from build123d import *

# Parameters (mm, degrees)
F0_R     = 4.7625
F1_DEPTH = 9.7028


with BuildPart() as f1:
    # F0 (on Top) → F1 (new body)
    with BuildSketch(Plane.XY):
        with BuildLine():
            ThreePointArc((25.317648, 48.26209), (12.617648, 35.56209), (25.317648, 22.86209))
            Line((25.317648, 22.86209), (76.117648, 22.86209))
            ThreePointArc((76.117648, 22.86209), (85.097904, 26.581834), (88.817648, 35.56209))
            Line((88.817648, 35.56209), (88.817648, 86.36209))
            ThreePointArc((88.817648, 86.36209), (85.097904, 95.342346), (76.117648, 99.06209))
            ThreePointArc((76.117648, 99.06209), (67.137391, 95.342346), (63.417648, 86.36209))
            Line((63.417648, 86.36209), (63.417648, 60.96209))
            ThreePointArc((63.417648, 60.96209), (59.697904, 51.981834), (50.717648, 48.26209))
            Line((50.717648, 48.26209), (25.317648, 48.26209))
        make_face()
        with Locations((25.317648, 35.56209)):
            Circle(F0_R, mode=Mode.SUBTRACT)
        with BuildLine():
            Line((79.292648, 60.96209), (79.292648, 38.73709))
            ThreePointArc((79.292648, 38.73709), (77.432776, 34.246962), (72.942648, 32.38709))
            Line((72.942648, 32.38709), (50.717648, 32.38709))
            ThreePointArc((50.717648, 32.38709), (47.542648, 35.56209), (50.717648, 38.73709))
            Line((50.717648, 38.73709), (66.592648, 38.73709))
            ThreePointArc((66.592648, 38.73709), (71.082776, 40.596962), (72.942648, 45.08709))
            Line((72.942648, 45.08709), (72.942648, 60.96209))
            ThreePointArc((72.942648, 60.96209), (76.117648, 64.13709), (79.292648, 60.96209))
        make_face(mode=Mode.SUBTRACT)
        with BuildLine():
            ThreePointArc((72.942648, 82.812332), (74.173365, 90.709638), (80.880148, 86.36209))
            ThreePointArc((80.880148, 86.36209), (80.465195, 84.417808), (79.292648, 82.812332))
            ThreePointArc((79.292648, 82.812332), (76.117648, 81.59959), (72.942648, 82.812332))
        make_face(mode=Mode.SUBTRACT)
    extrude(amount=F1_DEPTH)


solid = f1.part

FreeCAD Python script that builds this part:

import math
import FreeCAD as App
import Part
import Sketcher

V = App.Vector
Q = App.Units.Quantity

doc = App.newDocument("Part")
body = doc.addObject("PartDesign::Body", "Body")

sketch1 = body.newObject("Sketcher::SketchObject", "Sketch")
sketch1.AttachmentSupport = (doc.getObject("XY_Plane"), [""])
sketch1.MapMode = "FlatFace"
sketch1.addGeometry([
    Part.ArcOfCircle(Part.Circle(V(25.3, 35.6, 0), V(0, 0, 1), 12.7), math.radians(90), math.radians(270)),
    Part.LineSegment(V(25.3, 22.9, 0), V(76.1, 22.9, 0)),
    Part.ArcOfCircle(Part.Circle(V(76.1, 35.6, 0), V(0, 0, 1), 12.7), math.radians(-90), math.radians(0)),
    Part.LineSegment(V(88.8, 35.6, 0), V(88.8, 86.4, 0)),
    Part.ArcOfCircle(Part.Circle(V(76.1, 86.4, 0), V(0, 0, 1), 12.7), math.radians(0), math.radians(90)),
    Part.ArcOfCircle(Part.Circle(V(76.1, 86.4, 0), V(0, 0, 1), 12.7), math.radians(90), math.radians(180)),
    Part.LineSegment(V(63.4, 86.4, 0), V(63.4, 61, 0)),
    Part.ArcOfCircle(Part.Circle(V(50.7, 61, 0), V(0, 0, 1), 12.7), math.radians(-90), math.radians(0)),
    Part.LineSegment(V(50.7, 48.3, 0), V(25.3, 48.3, 0)),
    Part.Circle(V(25.3, 35.6, 0), V(0, 0, 1), 4.8),
    Part.ArcOfCircle(Part.Circle(V(76.1, 61, 0), V(0, 0, 1), 3.2), math.radians(0), math.radians(180)),
    Part.LineSegment(V(79.3, 61, 0), V(79.3, 38.7, 0)),
    Part.ArcOfCircle(Part.Circle(V(72.9, 38.7, 0), V(0, 0, 1), 6.4), math.radians(-90), math.radians(0)),
    Part.LineSegment(V(72.9, 32.4, 0), V(50.7, 32.4, 0)),
    Part.ArcOfCircle(Part.Circle(V(50.7, 35.6, 0), V(0, 0, 1), 3.2), math.radians(90), math.radians(270)),
    Part.LineSegment(V(50.7, 38.7, 0), V(66.6, 38.7, 0)),
    Part.ArcOfCircle(Part.Circle(V(66.6, 45.1, 0), V(0, 0, 1), 6.4), math.radians(-90), math.radians(0)),
    Part.LineSegment(V(72.9, 45.1, 0), V(72.9, 61, 0)),
    Part.ArcOfCircle(Part.Circle(V(76.1, 86.4, 0), V(0, 0, 1), 4.8), math.radians(-132), math.radians(-48)),
    Part.ArcOfCircle(Part.Circle(V(76.1, 86.4, 0), V(0, 0, 1), 4.8), math.radians(0), math.radians(228)),
    Part.ArcOfCircle(Part.Circle(V(76.1, 86.4, 0), V(0, 0, 1), 4.8), math.radians(-48), math.radians(0)),
], False)
sketch1.addConstraint([
    Sketcher.Constraint("Tangent", 0, 2, 1, 1),
    Sketcher.Constraint("Tangent", 1, 2, 2, 1),
    Sketcher.Constraint("Tangent", 2, 2, 3, 1),
    Sketcher.Constraint("Tangent", 3, 2, 4, 1),
    Sketcher.Constraint("Tangent", 4, 2, 5, 1),
    Sketcher.Constraint("Tangent", 5, 2, 6, 1),
    Sketcher.Constraint("Tangent", 6, 2, 7, 2),
    Sketcher.Constraint("Tangent", 7, 1, 8, 1),
    Sketcher.Constraint("Tangent", 8, 2, 0, 1),
    Sketcher.Constraint("Tangent", 10, 1, 11, 1),
    Sketcher.Constraint("Tangent", 11, 2, 12, 2),
    Sketcher.Constraint("Tangent", 12, 1, 13, 1),
    Sketcher.Constraint("Tangent", 13, 2, 14, 2),
    Sketcher.Constraint("Tangent", 14, 1, 15, 1),
    Sketcher.Constraint("Tangent", 15, 2, 16, 1),
    Sketcher.Constraint("Tangent", 16, 2, 17, 1),
    Sketcher.Constraint("Tangent", 17, 2, 10, 2),
    Sketcher.Constraint("Tangent", 18, 1, 19, 2),
    Sketcher.Constraint("Tangent", 19, 1, 20, 2),
    Sketcher.Constraint("Tangent", 20, 1, 18, 2),
    Sketcher.Constraint("Horizontal", 1),
    Sketcher.Constraint("Vertical", 3),
    Sketcher.Constraint("Vertical", 6),
    Sketcher.Constraint("Horizontal", 8),
    Sketcher.Constraint("Vertical", 11),
    Sketcher.Constraint("Horizontal", 13),
    Sketcher.Constraint("Horizontal", 15),
    Sketcher.Constraint("Vertical", 17),
    Sketcher.Constraint("Coincident", 9, 3, 0, 3),
    Sketcher.Constraint("Coincident", 18, 3, 4, 3),
    Sketcher.Constraint("Equal", 0, 2),
    Sketcher.Constraint("Equal", 2, 4),
    Sketcher.Constraint("Equal", 4, 5),
    Sketcher.Constraint("Equal", 5, 7),
    Sketcher.Constraint("Equal", 10, 14),
    Sketcher.Constraint("Equal", 12, 16),
    Sketcher.Constraint("Equal", 9, 18),
    Sketcher.Constraint("Horizontal", 7, 3, 10, 3),
    Sketcher.Constraint("Horizontal", 9, 3, 14, 3),
    Sketcher.Constraint("Horizontal", 11, 2, 14, 1),
    Sketcher.Constraint("Horizontal", 5, 2, 19, 1),
    Sketcher.Constraint("Horizontal", 18, 1, 20, 1),
    Sketcher.Constraint("Vertical", 5, 3, 10, 3),
    Sketcher.Constraint("Vertical", 7, 3, 14, 3),
    Sketcher.Constraint("Vertical", 1, 2, 4, 2),
    Sketcher.Constraint("Vertical", 17, 2, 18, 1),
    Sketcher.Constraint("Equal", 1, 3),
    Sketcher.Constraint("Radius", 0, Q("0.5 in")),
    Sketcher.Constraint("DistanceX", 1, 1, 1, 2, Q("2 in")),
    Sketcher.Constraint("Radius", 12, Q("0.25 in")),
    Sketcher.Constraint("Diameter", 9, Q("0.375 in")),
    Sketcher.Constraint("DistanceY", -1, 1, 0, 3, Q("35.56209 mm")),
    Sketcher.Constraint("DistanceX", -1, 1, 10, 3, Q("76.117648 mm")),
])
pad1 = body.newObject("PartDesign::Pad", "Pad")
pad1.Profile = sketch1
pad1.Length = Q("0.382 in")

doc.recompute()
